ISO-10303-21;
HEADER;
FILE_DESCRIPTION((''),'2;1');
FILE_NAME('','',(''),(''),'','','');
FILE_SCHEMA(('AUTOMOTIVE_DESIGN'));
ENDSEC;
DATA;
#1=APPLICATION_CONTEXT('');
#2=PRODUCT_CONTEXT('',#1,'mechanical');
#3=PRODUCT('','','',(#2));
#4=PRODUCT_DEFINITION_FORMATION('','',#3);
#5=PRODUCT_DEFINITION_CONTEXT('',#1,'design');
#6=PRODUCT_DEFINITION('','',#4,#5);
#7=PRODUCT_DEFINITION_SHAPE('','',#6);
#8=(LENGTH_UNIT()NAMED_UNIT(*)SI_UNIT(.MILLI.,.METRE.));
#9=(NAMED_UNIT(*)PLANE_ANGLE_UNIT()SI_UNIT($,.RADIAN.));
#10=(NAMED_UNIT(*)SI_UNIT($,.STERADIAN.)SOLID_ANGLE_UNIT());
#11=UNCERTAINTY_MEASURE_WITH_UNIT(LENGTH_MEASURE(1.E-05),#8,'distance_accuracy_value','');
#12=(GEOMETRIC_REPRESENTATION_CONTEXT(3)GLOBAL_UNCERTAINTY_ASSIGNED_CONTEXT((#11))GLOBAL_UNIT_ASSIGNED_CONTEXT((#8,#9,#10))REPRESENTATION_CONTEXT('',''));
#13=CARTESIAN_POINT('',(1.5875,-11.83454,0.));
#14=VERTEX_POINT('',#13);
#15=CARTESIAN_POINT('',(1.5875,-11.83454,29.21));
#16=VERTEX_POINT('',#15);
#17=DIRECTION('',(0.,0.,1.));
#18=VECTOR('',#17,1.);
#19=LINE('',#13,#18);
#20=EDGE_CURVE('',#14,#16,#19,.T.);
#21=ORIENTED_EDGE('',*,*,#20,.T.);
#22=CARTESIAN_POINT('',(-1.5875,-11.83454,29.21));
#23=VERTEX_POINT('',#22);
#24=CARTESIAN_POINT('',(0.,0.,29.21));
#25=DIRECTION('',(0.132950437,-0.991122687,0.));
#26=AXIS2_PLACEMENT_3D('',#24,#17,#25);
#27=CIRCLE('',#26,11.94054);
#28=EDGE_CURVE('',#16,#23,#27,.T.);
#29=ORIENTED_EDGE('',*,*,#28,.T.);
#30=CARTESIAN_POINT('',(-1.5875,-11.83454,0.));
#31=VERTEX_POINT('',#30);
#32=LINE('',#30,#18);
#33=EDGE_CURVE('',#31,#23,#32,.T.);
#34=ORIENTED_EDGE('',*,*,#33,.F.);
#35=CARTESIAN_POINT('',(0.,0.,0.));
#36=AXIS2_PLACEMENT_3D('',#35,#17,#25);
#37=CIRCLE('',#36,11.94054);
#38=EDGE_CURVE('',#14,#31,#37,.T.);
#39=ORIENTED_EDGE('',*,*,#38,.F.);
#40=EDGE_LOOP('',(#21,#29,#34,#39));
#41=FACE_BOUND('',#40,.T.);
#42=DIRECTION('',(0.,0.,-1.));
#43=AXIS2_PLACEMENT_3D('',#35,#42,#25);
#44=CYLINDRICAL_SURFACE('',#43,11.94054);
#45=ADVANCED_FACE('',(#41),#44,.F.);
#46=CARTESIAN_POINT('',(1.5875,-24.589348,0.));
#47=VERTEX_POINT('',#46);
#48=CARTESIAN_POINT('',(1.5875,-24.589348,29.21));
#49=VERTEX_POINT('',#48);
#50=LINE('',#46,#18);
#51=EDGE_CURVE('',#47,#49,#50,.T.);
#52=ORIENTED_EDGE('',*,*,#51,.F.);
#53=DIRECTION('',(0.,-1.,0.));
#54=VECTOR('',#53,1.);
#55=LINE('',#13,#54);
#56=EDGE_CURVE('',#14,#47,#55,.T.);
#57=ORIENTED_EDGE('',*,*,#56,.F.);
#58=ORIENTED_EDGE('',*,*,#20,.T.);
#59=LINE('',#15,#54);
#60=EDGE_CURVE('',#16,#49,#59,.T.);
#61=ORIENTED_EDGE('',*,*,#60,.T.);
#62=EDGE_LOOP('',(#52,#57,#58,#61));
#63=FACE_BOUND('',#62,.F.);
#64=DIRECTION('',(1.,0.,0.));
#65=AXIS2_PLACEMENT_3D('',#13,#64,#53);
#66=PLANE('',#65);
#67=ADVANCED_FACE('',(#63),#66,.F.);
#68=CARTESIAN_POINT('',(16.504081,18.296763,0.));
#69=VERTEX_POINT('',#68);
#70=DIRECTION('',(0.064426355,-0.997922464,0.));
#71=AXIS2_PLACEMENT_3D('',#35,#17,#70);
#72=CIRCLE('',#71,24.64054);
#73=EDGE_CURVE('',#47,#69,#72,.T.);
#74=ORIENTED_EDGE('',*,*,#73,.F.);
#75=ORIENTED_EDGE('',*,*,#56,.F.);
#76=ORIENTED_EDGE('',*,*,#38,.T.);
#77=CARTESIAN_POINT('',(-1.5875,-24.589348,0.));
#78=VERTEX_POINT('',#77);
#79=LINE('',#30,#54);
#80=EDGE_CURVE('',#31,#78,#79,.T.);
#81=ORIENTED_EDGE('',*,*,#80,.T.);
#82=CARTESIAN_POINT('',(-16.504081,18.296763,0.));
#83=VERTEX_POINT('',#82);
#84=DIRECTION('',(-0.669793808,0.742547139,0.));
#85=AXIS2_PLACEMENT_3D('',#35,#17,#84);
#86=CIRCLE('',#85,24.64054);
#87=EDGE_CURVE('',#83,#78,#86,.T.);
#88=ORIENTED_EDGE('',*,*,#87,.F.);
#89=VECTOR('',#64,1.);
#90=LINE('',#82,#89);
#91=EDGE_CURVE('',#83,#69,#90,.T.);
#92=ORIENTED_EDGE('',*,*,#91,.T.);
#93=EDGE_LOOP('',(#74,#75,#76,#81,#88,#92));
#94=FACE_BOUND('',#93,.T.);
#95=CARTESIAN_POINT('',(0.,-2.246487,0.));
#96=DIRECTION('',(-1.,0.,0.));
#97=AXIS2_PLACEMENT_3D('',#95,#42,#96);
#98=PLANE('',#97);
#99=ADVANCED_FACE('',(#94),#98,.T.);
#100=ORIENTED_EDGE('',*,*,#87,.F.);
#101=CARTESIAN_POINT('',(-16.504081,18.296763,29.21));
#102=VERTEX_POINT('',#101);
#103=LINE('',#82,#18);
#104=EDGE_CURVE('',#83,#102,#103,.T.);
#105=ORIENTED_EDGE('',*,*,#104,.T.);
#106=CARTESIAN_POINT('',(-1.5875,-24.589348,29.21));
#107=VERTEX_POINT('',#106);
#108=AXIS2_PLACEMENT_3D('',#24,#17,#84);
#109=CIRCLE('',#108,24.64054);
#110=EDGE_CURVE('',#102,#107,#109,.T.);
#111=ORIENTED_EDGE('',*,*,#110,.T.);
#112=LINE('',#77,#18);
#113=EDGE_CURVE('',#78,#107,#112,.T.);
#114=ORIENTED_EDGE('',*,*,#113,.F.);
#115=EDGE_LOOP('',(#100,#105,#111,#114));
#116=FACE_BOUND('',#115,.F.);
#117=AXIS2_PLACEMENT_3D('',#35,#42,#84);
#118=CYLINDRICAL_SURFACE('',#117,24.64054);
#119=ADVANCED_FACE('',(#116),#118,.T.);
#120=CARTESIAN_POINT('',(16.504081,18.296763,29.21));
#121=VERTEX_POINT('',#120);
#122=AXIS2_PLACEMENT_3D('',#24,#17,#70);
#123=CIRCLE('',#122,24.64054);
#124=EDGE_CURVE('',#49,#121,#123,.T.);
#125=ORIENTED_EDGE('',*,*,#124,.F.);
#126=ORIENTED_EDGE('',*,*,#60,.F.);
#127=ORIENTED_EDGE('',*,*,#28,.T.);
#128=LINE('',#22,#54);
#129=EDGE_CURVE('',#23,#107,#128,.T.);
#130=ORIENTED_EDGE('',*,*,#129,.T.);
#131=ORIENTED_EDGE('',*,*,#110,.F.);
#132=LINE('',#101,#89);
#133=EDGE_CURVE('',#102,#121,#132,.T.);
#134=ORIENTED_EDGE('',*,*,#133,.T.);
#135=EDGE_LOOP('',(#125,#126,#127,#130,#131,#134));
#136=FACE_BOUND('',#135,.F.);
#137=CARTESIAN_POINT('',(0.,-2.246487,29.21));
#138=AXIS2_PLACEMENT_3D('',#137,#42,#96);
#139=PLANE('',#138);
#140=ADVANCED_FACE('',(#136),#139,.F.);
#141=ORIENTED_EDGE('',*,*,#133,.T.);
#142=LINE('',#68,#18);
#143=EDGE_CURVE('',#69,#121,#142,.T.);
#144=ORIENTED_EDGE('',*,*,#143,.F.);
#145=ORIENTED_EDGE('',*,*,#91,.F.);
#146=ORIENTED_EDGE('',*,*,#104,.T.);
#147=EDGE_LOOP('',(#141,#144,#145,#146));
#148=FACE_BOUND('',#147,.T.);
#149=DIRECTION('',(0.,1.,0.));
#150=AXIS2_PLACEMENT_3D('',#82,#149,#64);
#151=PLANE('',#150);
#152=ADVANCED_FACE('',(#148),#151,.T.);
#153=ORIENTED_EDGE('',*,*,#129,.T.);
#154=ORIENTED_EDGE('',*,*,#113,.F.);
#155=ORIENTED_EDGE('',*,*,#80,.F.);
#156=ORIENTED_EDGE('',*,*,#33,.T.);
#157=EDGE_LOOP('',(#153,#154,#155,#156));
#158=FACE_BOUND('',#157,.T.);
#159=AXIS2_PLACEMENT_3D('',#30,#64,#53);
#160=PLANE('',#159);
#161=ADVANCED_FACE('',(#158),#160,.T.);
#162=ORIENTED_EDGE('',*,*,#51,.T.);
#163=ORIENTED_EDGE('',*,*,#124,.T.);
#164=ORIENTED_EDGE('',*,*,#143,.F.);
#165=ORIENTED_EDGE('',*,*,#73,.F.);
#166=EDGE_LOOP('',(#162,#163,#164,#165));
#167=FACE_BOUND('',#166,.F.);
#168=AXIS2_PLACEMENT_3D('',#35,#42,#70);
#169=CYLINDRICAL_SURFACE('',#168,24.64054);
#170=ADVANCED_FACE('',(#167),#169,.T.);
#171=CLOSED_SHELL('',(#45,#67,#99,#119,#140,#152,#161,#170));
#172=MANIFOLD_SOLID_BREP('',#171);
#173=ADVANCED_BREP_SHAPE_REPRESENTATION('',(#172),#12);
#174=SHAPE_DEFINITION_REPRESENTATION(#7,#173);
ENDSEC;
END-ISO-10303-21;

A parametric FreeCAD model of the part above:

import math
import FreeCAD as App
import Part
import Sketcher

V = App.Vector
Q = App.Units.Quantity

doc = App.newDocument("Part")
body = doc.addObject("PartDesign::Body", "Body")

# Sketch on XY plane
sketch1 = doc.addObject("Sketcher::SketchObject", "Sketch")
body.addObject(sketch1)
sketch1.AttachmentSupport = (doc.XY_Plane, [""])
sketch1.MapMode = "FlatFace"
sketch1.addGeometry([
    Part.ArcOfCircle(Part.Circle(V(0, 0, 0), V(0, 0, 1), 11.9), math.radians(-82), math.radians(262)),  # 0
    Part.LineSegment(V(1.6, -11.8, 0), V(1.6, -24.6, 0)),  # 1
    Part.ArcOfCircle(Part.Circle(V(0, 0, 0), V(0, 0, 1), 24.6), math.radians(-86), math.radians(48)),  # 2
    Part.LineSegment(V(16.5, 18.3, 0), V(-16.5, 18.3, 0)),  # 3
    Part.ArcOfCircle(Part.Circle(V(0, 0, 0), V(0, 0, 1), 24.6), math.radians(132), math.radians(266)),  # 4
    Part.LineSegment(V(-1.6, -24.6, 0), V(-1.6, -11.8, 0)),  # 5
], False)
sketch1.addConstraint([
    Sketcher.Constraint("Coincident", 0, 1, 1, 1),
    Sketcher.Constraint("Coincident", 1, 2, 2, 1),
    Sketcher.Constraint("Coincident", 2, 2, 3, 1),
    Sketcher.Constraint("Coincident", 3, 2, 4, 1),
    Sketcher.Constraint("Coincident", 4, 2, 5, 1),
    Sketcher.Constraint("Coincident", 5, 2, 0, 2),
    Sketcher.Constraint("Vertical", 1),
    Sketcher.Constraint("Horizontal", 3),
    Sketcher.Constraint("Vertical", 5),
    Sketcher.Constraint("Coincident", 0, 3, -1, 1),
    Sketcher.Constraint("Coincident", 2, 3, -1, 1),
    Sketcher.Constraint("Coincident", 4, 3, -1, 1),
    Sketcher.Constraint("Equal", 2, 4),
    Sketcher.Constraint("Horizontal", 1, 2, 4, 2),
    Sketcher.Constraint("Radius", 0, Q("0.4701 in")),
    Sketcher.Constraint("Radius", 2, Q("0.9701 in")),
    Sketcher.Constraint("DistanceX", -1, 1, 0, 1, Q("0.0625 in")),
    Sketcher.Constraint("DistanceX", 3, 2, 3, 1, Q("33.008162 mm")),
])
pad1 = doc.addObject("PartDesign::Pad", "Pad")
body.addObject(pad1)
pad1.Profile = sketch1
pad1.Length = Q("1.15 in")

doc.recompute()
